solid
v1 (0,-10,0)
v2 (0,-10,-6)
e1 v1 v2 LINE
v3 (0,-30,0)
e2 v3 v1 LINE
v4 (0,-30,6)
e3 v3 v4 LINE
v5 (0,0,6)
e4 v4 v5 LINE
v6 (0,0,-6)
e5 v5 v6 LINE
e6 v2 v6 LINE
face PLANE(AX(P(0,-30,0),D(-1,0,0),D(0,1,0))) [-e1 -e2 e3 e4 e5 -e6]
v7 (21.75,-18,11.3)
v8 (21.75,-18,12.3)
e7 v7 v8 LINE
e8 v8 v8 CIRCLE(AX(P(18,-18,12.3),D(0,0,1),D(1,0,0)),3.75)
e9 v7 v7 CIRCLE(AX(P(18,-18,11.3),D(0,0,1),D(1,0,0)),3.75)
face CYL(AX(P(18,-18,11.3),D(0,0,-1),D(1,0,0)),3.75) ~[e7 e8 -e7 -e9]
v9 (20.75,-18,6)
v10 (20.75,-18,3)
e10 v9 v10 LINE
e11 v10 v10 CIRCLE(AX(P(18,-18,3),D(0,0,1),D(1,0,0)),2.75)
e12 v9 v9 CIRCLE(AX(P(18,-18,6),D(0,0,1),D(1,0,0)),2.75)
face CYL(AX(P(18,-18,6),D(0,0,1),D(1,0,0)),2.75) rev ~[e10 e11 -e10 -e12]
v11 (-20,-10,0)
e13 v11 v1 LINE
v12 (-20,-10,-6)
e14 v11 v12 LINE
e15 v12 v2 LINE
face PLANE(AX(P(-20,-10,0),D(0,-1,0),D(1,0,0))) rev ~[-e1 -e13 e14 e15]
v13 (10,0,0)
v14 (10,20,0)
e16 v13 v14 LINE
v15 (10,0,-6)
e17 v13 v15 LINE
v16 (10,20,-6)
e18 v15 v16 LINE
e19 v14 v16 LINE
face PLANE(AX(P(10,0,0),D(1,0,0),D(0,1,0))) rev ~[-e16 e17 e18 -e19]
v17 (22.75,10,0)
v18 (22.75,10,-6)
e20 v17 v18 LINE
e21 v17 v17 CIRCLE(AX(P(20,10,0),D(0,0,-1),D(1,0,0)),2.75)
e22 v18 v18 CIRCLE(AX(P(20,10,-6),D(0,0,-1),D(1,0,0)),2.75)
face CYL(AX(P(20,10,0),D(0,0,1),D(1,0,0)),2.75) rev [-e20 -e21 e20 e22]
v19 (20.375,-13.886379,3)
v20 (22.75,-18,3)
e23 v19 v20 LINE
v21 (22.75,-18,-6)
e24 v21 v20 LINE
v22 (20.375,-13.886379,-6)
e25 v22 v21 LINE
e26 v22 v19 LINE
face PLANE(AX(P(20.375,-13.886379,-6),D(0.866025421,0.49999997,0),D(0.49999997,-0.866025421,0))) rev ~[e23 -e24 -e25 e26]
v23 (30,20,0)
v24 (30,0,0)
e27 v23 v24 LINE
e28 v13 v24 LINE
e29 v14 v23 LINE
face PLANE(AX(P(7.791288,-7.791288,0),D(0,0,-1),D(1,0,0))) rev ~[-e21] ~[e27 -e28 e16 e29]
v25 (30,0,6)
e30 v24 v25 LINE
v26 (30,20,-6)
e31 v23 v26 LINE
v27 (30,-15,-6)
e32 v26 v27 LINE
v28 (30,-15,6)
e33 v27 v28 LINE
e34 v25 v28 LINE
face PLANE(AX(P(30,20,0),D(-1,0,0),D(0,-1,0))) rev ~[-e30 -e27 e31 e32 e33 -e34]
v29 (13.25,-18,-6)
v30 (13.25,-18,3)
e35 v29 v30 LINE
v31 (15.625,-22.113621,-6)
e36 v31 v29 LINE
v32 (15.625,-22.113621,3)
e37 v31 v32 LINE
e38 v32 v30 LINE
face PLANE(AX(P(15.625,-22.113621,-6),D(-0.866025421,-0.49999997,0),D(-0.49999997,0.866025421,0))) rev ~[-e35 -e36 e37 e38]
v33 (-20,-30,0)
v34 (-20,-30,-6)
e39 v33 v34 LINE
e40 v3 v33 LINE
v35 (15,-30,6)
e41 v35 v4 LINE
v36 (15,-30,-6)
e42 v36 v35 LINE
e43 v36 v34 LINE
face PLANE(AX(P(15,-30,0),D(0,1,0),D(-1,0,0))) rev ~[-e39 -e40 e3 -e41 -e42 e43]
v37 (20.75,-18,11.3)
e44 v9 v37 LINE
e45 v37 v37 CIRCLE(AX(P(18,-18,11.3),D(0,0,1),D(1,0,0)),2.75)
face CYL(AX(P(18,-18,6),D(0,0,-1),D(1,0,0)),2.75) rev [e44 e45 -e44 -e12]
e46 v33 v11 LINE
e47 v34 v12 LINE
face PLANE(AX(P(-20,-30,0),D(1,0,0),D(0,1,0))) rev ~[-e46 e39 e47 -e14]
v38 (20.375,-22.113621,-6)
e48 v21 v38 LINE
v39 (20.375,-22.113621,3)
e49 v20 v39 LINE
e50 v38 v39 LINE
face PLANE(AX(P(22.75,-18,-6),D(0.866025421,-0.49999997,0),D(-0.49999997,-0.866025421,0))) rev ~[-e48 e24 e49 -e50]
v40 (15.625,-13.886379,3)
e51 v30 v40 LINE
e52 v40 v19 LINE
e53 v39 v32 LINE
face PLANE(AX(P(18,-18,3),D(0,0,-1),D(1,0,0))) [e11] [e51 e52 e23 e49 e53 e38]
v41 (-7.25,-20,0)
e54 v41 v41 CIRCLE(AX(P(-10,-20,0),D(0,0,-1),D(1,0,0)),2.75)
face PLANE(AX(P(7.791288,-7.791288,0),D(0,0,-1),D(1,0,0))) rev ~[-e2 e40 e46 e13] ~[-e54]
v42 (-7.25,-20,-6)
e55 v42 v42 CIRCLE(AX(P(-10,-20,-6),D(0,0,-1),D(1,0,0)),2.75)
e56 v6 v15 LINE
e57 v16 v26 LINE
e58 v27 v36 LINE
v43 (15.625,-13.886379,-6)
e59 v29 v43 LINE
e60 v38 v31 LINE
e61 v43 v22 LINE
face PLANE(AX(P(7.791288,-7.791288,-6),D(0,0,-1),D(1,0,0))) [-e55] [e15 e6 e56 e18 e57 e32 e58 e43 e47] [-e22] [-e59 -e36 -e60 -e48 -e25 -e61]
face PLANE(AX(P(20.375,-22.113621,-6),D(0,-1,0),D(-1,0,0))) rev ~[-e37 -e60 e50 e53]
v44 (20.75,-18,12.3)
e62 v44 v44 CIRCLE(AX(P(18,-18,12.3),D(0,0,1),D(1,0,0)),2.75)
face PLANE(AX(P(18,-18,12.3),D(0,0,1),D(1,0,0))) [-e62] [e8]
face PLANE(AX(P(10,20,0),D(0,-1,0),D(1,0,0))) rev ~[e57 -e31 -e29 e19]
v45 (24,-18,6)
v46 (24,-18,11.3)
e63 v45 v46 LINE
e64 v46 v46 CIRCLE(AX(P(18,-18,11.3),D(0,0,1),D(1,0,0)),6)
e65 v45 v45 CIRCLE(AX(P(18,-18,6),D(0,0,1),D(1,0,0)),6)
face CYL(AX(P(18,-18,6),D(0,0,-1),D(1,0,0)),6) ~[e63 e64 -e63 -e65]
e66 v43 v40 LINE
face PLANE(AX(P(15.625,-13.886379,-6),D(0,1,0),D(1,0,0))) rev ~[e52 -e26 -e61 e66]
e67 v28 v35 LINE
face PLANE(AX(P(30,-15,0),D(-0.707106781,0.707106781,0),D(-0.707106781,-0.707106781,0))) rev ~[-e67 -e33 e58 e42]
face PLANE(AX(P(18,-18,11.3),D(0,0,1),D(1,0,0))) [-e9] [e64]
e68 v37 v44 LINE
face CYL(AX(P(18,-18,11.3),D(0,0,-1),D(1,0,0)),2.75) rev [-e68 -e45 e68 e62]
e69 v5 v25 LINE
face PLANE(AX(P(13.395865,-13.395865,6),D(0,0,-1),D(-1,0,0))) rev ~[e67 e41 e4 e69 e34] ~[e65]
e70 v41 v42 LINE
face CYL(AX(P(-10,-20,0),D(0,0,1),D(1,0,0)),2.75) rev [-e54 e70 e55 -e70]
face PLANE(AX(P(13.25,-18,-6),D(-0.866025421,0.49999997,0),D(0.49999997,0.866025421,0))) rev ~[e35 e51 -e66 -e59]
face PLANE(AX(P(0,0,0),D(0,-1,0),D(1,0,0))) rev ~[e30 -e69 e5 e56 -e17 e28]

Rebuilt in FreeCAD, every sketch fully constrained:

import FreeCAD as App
import Part
import Sketcher

V = App.Vector
Q = App.Units.Quantity


def add_polygon(sketch, points):
    """Adds a closed chain of lines whose ends are joined by coincident constraints."""
    first, n = sketch.GeometryCount, len(points)
    for a, b in zip(points, points[1:] + points[:1]):
        sketch.addGeometry(Part.LineSegment(App.Vector(*a, 0), App.Vector(*b, 0)), False)
    for i in range(n):
        sketch.addConstraint(Sketcher.Constraint("Coincident", first + i, 2, first + (i + 1) % n, 1))

doc = App.newDocument("Part")
body = doc.addObject("PartDesign::Body", "Body")

# Sketch on XY plane
sketch1 = body.newObject("Sketcher::SketchObject", "Sketch")
sketch1.AttachmentSupport = (doc.getObject("XY_Plane"), [""])
sketch1.MapMode = "FlatFace"
add_polygon(sketch1, [(30, 0), (0, 0), (0, -30), (15, -30), (30, -15)])  # lines 0-4
sketch1.addConstraint([
    Sketcher.Constraint("Horizontal", 0),
    Sketcher.Constraint("Vertical", 1),
    Sketcher.Constraint("Horizontal", 2),
    Sketcher.Constraint("Vertical", 4),
    Sketcher.Constraint("Coincident", 0, 2, -1, 1),
    Sketcher.Constraint("Equal", 0, 1),
    Sketcher.Constraint("Equal", 2, 4),
    Sketcher.Constraint("DistanceX", 0, 2, 0, 1, 30.0),
    Sketcher.Constraint("DistanceX", 2, 1, 2, 2, 15.0),
])
pad1 = body.newObject("PartDesign::Pad", "Pad")
pad1.Profile = sketch1
pad1.Length = 6

# Sketch on XY plane
sketch2 = body.newObject("Sketcher::SketchObject", "Sketch001")
sketch2.AttachmentSupport = (doc.getObject("XY_Plane"), [""])
sketch2.MapMode = "FlatFace"
add_polygon(sketch2, [(15, -30), (-20, -30), (-20, -10), (0, -10), (0, 0), (10, 0), (10, 20), (30, 20), (30, -15)])  # lines 0-8
sketch2.addGeometry(Part.Circle(V(20, 10, 0), V(0, 0, 1), 2.8), False)  # 9
sketch2.addGeometry(Part.Circle(V(-10, -20, 0), V(0, 0, 1), 2.8), False)  # 10
sketch2.addConstraint([
    Sketcher.Constraint("Horizontal", 0),
    Sketcher.Constraint("Vertical", 1),
    Sketcher.Constraint("Horizontal", 2),
    Sketcher.Constraint("Vertical", 3),
    Sketcher.Constraint("Horizontal", 4),
    Sketcher.Constraint("Vertical", 5),
    Sketcher.Constraint("Horizontal", 6),
    Sketcher.Constraint("Vertical", 7),
    Sketcher.Constraint("Coincident", 3, 2, -1, 1),
    Sketcher.Constraint("Equal", 9, 10),
    Sketcher.Constraint("Equal", 2, 6),
    Sketcher.Constraint("Equal", 6, 1),
    Sketcher.Constraint("Equal", 4, 3),
    Sketcher.Constraint("Equal", 1, 5),
    Sketcher.Constraint("Equal", 0, 7),
    Sketcher.Constraint("Diameter", 9, 5.5),
    Sketcher.Constraint("DistanceX", 0, 2, 0, 1, 35.0),
    Sketcher.Constraint("DistanceX", 2, 1, 2, 2, 20.0),
    Sketcher.Constraint("DistanceX", 4, 1, 4, 2, 10.0),
    Sketcher.Constraint("DistanceX", -1, 1, 9, 3, 20.0),
    Sketcher.Constraint("DistanceY", -1, 1, 9, 3, 10.0),
    Sketcher.Constraint("DistanceX", 10, 3, -1, 1, 10.0),
    Sketcher.Constraint("DistanceY", 10, 3, -1, 1, 20.0),
])
pad2 = body.newObject("PartDesign::Pad", "Pad001")
pad2.Profile = sketch2
pad2.Length = 6
pad2.Reversed = True

# Sketch on XY plane
sketch3 = body.newObject("Sketcher::SketchObject", "Sketch002")
sketch3.AttachmentSupport = (doc.getObject("XY_Plane"), [""])
sketch3.MapMode = "FlatFace"
sketch3.AttachmentOffset = App.Placement(V(0, 0, 6), App.Rotation())
sketch3.addGeometry(Part.Circle(V(18, -18, 0), V(0, 0, 1), 2.8), False)
sketch3.addConstraint([
    Sketcher.Constraint("Diameter", 0, 5.5),
    Sketcher.Constraint("DistanceX", -1, 1, 0, 3, 18.0),
    Sketcher.Constraint("DistanceY", 0, 3, -1, 1, 18.0),
])
pocket1 = body.newObject("PartDesign::Pocket", "Pocket")
pocket1.Profile = sketch3
pocket1.Type = "ThroughAll"

# Sketch on XY plane
sketch4 = body.newObject("Sketcher::SketchObject", "Sketch003")
sketch4.AttachmentSupport = (doc.getObject("XY_Plane"), [""])
sketch4.MapMode = "FlatFace"
sketch4.AttachmentOffset = App.Placement(V(0, 0, 6), App.Rotation())
sketch4.addGeometry([
    Part.Circle(V(18, -18, 0), V(0, 0, 1), 6),
    Part.Circle(V(18, -18, 0), V(0, 0, 1), 2.8),
], False)
sketch4.addConstraint([
    Sketcher.Constraint("Coincident", 1, 3, 0, 3),
    Sketcher.Constraint("Diameter", 0, 12.0),
    Sketcher.Constraint("Diameter", 1, 5.5),
    Sketcher.Constraint("DistanceX", -1, 1, 0, 3, 18.0),
    Sketcher.Constraint("DistanceY", 0, 3, -1, 1, 18.0),
])
pad3 = body.newObject("PartDesign::Pad", "Pad002")
pad3.Profile = sketch4
pad3.Length = 5.3

# Sketch on XY plane
sketch5 = body.newObject("Sketcher::SketchObject", "Sketch004")
sketch5.AttachmentSupport = (doc.getObject("XY_Plane"), [""])
sketch5.MapMode = "FlatFace"
sketch5.AttachmentOffset = App.Placement(V(0, 0, 11.3), App.Rotation())
sketch5.addGeometry([
    Part.Circle(V(18, -18, 0), V(0, 0, 1), 3.8),
    Part.Circle(V(18, -18, 0), V(0, 0, 1), 2.8),
], False)
sketch5.addConstraint([
    Sketcher.Constraint("Coincident", 1, 3, 0, 3),
    Sketcher.Constraint("Diameter", 0, 7.5),
    Sketcher.Constraint("Diameter", 1, 5.5),
    Sketcher.Constraint("DistanceX", -1, 1, 0, 3, 18.0),
    Sketcher.Constraint("DistanceY", 0, 3, -1, 1, 18.0),
])
pad4 = body.newObject("PartDesign::Pad", "Pad003")
pad4.Profile = sketch5
pad4.Length = 1

# Sketch on XY plane
sketch6 = body.newObject("Sketcher::SketchObject", "Sketch005")
sketch6.AttachmentSupport = (doc.getObject("XY_Plane"), [""])
sketch6.MapMode = "FlatFace"
sketch6.AttachmentOffset = App.Placement(V(0, 0, -6), App.Rotation())
add_polygon(sketch6, [(22.8, -18), (20.4, -22.1), (15.6, -22.1), (13.2, -18), (15.6, -13.9), (20.4, -13.9)])  # lines 0-5
sketch6.addConstraint([
    Sketcher.Constraint("Horizontal", 1),
    Sketcher.Constraint("Horizontal", 4),
    Sketcher.Constraint("Parallel", 0, 3),
    Sketcher.Constraint("Parallel", 2, 5),
    Sketcher.Constraint("Horizontal", 2, 2, 5, 2),
    Sketcher.Constraint("Vertical", 1, 2, 3, 2),
    Sketcher.Constraint("Vertical", 0, 2, 4, 2),
    Sketcher.Constraint("Angle", 0, Q("-119.999998 deg")),
    Sketcher.Constraint("DistanceY", 2, 2, -1, 1, 18.0),
    Sketcher.Constraint("DistanceX", 1, 2, 1, 1, 4.75),
    Sketcher.Constraint("DistanceX", 2, 2, 5, 2, 9.5),
    Sketcher.Constraint("DistanceX", -1, 1, 2, 2, 13.25),
])
pocket2 = body.newObject("PartDesign::Pocket", "Pocket001")
pocket2.Profile = sketch6
pocket2.Length = 9
pocket2.Reversed = True

doc.recompute()
